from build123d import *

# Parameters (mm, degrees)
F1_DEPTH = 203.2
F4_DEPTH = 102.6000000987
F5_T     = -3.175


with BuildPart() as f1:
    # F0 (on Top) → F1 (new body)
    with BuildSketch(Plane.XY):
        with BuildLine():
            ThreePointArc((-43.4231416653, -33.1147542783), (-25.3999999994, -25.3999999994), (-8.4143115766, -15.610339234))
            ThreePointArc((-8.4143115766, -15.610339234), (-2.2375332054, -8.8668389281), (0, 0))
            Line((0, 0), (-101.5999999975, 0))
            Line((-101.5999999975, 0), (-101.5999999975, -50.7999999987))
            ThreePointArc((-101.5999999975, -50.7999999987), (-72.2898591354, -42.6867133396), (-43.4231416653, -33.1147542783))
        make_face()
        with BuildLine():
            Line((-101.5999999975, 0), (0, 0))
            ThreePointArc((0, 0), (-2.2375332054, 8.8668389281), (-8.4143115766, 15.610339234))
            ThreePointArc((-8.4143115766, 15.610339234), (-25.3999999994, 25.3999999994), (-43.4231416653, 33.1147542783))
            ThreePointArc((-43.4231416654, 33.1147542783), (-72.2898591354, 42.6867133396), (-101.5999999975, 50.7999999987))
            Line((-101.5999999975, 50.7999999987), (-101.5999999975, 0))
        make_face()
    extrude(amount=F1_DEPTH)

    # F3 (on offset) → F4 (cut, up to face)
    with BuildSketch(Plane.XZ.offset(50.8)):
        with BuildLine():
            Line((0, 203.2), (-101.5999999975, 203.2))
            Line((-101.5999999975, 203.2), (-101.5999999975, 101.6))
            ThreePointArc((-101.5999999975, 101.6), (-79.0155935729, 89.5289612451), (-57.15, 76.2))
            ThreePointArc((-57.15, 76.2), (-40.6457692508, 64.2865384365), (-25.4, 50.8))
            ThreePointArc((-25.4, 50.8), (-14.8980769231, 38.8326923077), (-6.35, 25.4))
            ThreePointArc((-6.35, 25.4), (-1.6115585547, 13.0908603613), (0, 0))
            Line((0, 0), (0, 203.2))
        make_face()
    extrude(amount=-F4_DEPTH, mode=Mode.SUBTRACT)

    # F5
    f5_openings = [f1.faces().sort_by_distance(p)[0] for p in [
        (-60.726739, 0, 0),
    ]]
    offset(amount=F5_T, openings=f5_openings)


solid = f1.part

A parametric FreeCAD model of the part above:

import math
import FreeCAD as App
import Part
import Sketcher
from FreeCAD import Vector
Q = App.Units.Quantity


def faces_at(feature, points):
    """Names of the faces that lie closest to the given points."""
    faces = feature.Shape.Faces
    near = lambda p: min(range(len(faces)), key=lambda i: faces[i].distToShape(Part.Vertex(*p))[0])
    return sorted({f"Face{near(p) + 1}" for p in points})

doc = App.newDocument("Part")
body = doc.addObject("PartDesign::Body", "Body")

sketch1 = body.newObject("Sketcher::SketchObject", "Sketch")
sketch1.AttachmentSupport = (doc.getObject("XY_Plane"), [""])
sketch1.MapMode = "FlatFace"
sketch1.addGeometry([
    Part.ArcOfCircle(Part.Circle(Vector(-99.495112, 122.790223, 0), Vector(0, 0, 1), 165.681706), math.radians(-70.218636), math.radians(-56.651262)),
    Part.ArcOfCircle(Part.Circle(Vector(-18.687407, 0, 0), Vector(0, 0, 1), 18.687407), math.radians(-56.651262), math.radians(0)),
    Part.ArcOfCircle(Part.Circle(Vector(-18.687407, 0, 0), Vector(0, 0, 1), 18.687407), math.radians(0), math.radians(56.651262)),
    Part.ArcOfCircle(Part.Circle(Vector(-99.495112, -122.790223, 0), Vector(0, 0, 1), 165.681706), math.radians(56.651262), math.radians(70.218636)),
    Part.ArcOfCircle(Part.Circle(Vector(-248.737779, -537.751116, 0), Vector(0, 0, 1), 606.664604), math.radians(70.218636), math.radians(75.963757)),
    Part.LineSegment(Vector(-101.6, 50.8, 0), Vector(-101.6, -50.8, 0)),
    Part.ArcOfCircle(Part.Circle(Vector(-248.737779, 537.751116, 0), Vector(0, 0, 1), 606.664604), math.radians(-75.963757), math.radians(-70.218636)),
], False)
sketch1.addConstraint([
    Sketcher.Constraint("Tangent", 0, 2, 1, 1),
    Sketcher.Constraint("Tangent", 1, 2, 2, 1),
    Sketcher.Constraint("Tangent", 2, 2, 3, 1),
    Sketcher.Constraint("Tangent", 3, 2, 4, 1),
    Sketcher.Constraint("Coincident", 4, 2, 5, 1),
    Sketcher.Constraint("Coincident", 5, 2, 6, 1),
    Sketcher.Constraint("Tangent", 6, 2, 0, 1),
    Sketcher.Constraint("Vertical", 5),
    Sketcher.Constraint("Coincident", 1, 2, -1, 1),
    Sketcher.Constraint("Equal", 1, 2),
    Sketcher.Constraint("Equal", 0, 3),
    Sketcher.Constraint("Equal", 4, 6),
    Sketcher.Constraint("Symmetric", 0, 3, 3, 3, -1),
    Sketcher.Constraint("Vertical", 4, 3, 6, 3),
    Sketcher.Constraint("DistanceY", 5, 2, 5, 1, Q("4 in")),
    Sketcher.Constraint("DistanceX", 5, 2, -1, 1, Q("4 in")),
    Sketcher.Constraint("Radius", 0, Q("165.681706 mm")),
    Sketcher.Constraint("Radius", 1, Q("18.687407 mm")),
    Sketcher.Constraint("Radius", 4, Q("606.664604 mm")),
    Sketcher.Constraint("DistanceX", 0, 3, 2, 2, Q("91.0808 mm")),
])
pad1 = body.newObject("PartDesign::Pad", "Pad")
pad1.Profile = sketch1
pad1.Length = Q("8 in")

sketch2 = body.newObject("Sketcher::SketchObject", "Sketch001")
sketch2.AttachmentSupport = (doc.getObject("XZ_Plane"), [""])
sketch2.MapMode = "FlatFace"
sketch2.AttachmentOffset = App.Placement(Vector(0, 0, 2 * 25.4), App.Rotation())
sketch2.addGeometry([
    Part.LineSegment(Vector(0, 203.2, 0), Vector(-101.6, 203.2, 0)),
    Part.LineSegment(Vector(-101.6, 203.2, 0), Vector(-101.6, 101.6, 0)),
    Part.ArcOfCircle(Part.Circle(Vector(-303.579154, -303.457269, 0), Vector(0, 0, 1), 452.622326), math.radians(57.013075), math.radians(63.497162)),
    Part.ArcOfCircle(Part.Circle(Vector(-169.124814, -96.312268, 0), Vector(0, 0, 1), 205.666822), math.radians(45.667308), math.radians(57.013075)),
    Part.ArcOfCircle(Part.Circle(Vector(-97.936538, -23.446154, 0), Vector(0, 0, 1), 103.798077), math.radians(28.072487), math.radians(45.667308)),
    Part.ArcOfCircle(Part.Circle(Vector(-53.975, 0, 0), Vector(0, 0, 1), 53.975), math.radians(0), math.radians(28.072487)),
    Part.LineSegment(Vector(0, 0, 0), Vector(0, 203.2, 0)),
], False)
sketch2.addConstraint([
    Sketcher.Constraint("Coincident", 0, 2, 1, 1),
    Sketcher.Constraint("Coincident", 1, 2, 2, 2),
    Sketcher.Constraint("Tangent", 2, 1, 3, 2),
    Sketcher.Constraint("Tangent", 3, 1, 4, 2),
    Sketcher.Constraint("Tangent", 4, 1, 5, 2),
    Sketcher.Constraint("Tangent", 5, 1, 6, 1),
    Sketcher.Constraint("Coincident", 6, 2, 0, 1),
    Sketcher.Constraint("Horizontal", 0),
    Sketcher.Constraint("Vertical", 1),
    Sketcher.Constraint("Vertical", 6),
    Sketcher.Constraint("Coincident", 5, 1, -1, 1),
    Sketcher.Constraint("Equal", 0, 1),
    Sketcher.Constraint("DistanceX", 0, 2, 0, 1, Q("4 in")),
    Sketcher.Constraint("DistanceY", 6, 1, 6, 2, Q("8 in")),
    Sketcher.Constraint("DistanceY", -1, 1, 2, 1, Q("3 in")),
    Sketcher.Constraint("DistanceX", 3, 1, -1, 1, Q("1 in")),
    Sketcher.Constraint("DistanceY", -1, 1, 4, 1, Q("1 in")),
    Sketcher.Constraint("Radius", 5, Q("2.125 in")),
    Sketcher.Constraint("Radius", 3, Q("205.666822 mm")),
    Sketcher.Constraint("Radius", 2, Q("452.622326 mm")),
])
pocket1 = body.newObject("PartDesign::Pocket", "Pocket")
pocket1.Profile = sketch2
pocket1.Length = 102.6
doc.recompute()

thickness = body.newObject("PartDesign::Thickness", "Thickness")
thickness.Base = (pocket1, faces_at(pocket1, [(-50.8, 0, 0)]))
thickness.Value = Q("0.125 in")
thickness.Reversed = True
thickness.Join = "Arc"

doc.recompute()
